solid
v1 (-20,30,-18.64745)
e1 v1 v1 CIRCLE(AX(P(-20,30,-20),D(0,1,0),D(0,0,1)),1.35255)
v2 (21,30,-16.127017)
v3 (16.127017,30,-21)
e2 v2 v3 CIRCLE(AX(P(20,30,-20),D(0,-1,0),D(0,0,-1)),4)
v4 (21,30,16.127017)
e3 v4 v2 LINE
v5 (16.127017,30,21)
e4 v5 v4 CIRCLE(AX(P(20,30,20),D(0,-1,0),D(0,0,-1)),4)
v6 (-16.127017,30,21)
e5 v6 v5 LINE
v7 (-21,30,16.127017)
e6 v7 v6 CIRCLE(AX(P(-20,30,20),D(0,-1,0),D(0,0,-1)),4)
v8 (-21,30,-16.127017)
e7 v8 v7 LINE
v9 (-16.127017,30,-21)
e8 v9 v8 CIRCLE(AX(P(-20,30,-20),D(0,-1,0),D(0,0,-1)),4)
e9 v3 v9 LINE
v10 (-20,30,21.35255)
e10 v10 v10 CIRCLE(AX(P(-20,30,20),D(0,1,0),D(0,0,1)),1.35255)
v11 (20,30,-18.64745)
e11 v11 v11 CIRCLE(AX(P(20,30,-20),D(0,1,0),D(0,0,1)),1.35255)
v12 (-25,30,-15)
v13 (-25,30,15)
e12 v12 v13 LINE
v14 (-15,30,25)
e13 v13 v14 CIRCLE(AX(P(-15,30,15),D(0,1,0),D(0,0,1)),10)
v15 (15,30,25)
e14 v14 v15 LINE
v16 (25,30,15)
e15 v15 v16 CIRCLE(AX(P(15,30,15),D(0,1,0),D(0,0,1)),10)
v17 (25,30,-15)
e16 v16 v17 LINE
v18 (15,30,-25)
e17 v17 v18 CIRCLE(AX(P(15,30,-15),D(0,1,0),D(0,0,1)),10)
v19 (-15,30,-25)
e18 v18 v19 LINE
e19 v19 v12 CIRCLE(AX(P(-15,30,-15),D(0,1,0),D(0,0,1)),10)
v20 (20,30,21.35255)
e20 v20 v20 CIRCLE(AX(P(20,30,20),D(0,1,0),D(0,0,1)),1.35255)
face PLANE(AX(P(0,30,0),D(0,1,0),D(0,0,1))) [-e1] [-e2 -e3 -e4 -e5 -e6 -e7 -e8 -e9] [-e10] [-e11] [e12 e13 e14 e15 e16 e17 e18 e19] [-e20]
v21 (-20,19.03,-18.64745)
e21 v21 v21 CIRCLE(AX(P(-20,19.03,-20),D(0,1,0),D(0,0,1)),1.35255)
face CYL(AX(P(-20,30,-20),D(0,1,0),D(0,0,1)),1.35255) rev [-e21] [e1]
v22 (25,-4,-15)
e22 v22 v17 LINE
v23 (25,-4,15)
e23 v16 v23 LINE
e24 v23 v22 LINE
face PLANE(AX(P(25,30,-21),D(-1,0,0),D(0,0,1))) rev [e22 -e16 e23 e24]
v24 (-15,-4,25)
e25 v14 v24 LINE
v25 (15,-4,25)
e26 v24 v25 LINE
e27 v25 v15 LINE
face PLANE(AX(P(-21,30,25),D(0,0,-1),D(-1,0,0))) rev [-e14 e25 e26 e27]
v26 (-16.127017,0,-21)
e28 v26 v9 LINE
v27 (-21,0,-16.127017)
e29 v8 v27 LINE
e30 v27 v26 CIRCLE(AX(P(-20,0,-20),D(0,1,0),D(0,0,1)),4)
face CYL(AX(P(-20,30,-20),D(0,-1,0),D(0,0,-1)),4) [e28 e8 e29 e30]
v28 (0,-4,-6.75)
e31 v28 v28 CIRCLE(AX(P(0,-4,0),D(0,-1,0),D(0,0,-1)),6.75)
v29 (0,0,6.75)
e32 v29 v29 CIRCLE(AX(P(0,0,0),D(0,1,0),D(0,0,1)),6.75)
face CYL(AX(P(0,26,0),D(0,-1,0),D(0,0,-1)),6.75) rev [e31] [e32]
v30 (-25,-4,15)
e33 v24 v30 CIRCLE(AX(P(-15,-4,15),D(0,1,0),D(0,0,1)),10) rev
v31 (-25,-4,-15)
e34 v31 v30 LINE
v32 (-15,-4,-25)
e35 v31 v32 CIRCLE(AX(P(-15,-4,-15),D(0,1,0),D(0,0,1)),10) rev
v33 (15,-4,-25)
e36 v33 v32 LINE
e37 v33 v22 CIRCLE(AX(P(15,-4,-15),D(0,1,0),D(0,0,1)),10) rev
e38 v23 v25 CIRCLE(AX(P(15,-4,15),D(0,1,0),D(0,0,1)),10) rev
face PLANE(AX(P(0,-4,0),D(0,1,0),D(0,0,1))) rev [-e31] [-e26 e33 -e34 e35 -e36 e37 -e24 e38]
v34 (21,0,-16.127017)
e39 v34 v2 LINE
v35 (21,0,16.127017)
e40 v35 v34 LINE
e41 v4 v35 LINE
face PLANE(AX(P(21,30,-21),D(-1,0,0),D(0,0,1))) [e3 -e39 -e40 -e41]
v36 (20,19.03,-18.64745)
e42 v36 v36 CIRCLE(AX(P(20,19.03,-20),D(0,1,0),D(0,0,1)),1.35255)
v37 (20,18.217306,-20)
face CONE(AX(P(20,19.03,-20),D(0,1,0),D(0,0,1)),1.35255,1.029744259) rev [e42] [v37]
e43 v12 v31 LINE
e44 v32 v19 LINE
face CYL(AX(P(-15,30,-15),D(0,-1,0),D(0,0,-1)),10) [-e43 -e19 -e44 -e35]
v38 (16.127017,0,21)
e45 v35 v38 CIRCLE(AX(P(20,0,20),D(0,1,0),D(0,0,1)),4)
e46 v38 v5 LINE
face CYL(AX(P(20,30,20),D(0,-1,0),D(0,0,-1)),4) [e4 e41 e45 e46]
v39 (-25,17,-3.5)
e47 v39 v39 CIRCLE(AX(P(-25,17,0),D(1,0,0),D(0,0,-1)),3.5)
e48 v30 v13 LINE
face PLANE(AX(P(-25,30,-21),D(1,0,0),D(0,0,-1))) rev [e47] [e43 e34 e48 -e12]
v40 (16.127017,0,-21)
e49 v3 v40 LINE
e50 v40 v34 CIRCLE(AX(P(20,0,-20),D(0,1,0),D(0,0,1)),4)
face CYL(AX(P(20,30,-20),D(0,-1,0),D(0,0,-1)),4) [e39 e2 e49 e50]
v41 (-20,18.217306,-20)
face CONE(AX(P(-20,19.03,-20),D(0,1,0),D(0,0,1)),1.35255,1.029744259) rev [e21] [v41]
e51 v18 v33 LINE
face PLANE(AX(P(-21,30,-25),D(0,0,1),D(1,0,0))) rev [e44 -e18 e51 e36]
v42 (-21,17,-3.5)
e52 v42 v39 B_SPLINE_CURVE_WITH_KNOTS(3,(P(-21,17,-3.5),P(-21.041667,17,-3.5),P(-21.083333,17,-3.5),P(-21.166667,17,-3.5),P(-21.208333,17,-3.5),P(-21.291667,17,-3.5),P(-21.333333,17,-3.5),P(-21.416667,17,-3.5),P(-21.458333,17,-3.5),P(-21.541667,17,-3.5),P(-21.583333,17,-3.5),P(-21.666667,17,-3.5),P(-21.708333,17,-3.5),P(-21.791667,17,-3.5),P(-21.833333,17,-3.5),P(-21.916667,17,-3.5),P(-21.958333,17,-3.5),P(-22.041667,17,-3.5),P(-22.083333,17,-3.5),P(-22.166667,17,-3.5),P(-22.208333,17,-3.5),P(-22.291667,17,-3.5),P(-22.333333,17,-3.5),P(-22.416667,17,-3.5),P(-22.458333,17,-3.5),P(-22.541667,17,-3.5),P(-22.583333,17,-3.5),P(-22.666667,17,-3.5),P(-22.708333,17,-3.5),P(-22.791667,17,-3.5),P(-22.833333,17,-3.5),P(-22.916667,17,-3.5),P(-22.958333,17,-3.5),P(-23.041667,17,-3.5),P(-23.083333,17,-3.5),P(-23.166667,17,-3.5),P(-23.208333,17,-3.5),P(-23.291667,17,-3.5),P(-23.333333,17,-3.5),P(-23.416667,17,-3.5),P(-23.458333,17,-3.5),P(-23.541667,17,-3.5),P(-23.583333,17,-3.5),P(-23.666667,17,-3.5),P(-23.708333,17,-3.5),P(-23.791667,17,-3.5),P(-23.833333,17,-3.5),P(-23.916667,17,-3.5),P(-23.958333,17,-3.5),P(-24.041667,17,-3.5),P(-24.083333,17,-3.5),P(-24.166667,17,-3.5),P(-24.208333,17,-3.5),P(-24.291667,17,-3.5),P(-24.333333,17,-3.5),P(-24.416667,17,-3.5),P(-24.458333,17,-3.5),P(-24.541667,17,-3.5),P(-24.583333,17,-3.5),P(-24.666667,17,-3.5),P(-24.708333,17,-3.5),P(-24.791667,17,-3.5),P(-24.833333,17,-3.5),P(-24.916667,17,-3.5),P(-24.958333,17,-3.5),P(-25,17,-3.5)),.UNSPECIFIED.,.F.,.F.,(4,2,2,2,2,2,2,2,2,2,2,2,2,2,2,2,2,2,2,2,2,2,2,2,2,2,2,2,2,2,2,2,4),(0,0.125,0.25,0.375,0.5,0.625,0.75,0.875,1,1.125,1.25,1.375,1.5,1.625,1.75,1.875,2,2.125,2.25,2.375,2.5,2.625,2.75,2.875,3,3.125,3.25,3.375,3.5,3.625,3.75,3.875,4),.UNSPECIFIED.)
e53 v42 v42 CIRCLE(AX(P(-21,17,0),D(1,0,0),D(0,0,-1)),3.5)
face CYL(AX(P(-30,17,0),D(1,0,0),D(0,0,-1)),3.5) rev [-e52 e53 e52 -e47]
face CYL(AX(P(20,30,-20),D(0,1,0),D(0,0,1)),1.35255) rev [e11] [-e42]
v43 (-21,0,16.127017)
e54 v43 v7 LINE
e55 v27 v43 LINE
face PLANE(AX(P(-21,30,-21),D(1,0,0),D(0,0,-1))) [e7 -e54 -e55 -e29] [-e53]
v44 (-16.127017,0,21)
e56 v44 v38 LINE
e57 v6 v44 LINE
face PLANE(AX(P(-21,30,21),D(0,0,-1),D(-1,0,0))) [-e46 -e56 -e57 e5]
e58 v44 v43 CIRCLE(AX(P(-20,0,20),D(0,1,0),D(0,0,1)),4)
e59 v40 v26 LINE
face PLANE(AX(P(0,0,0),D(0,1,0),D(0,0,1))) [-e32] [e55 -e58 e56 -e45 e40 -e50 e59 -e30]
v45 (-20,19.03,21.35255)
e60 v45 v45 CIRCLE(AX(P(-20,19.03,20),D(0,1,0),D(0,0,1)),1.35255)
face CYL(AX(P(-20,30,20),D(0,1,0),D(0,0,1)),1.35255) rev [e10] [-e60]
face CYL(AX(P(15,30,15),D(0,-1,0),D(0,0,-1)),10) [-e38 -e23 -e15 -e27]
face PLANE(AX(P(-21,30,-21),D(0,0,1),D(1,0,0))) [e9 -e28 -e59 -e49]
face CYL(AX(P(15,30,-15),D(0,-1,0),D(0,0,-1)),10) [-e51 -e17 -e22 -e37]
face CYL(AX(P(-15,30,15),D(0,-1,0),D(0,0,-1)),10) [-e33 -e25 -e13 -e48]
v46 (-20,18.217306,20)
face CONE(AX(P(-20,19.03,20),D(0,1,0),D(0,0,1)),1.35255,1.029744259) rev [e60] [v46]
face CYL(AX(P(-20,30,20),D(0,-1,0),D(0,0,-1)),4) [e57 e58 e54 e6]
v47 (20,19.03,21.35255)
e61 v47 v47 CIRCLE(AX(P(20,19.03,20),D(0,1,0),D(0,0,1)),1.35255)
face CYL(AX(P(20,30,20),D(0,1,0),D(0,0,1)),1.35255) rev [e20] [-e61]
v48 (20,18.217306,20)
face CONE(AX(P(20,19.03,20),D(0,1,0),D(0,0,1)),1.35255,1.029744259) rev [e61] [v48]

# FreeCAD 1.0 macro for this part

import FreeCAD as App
import Part
import Sketcher
from FreeCAD import Vector
Q = App.Units.Quantity


def edges_at(feature, points):
    """Names of the edges that pass closest to the given points."""
    edges = feature.Shape.Edges
    near = lambda p: min(range(len(edges)), key=lambda i: edges[i].distToShape(Part.Vertex(*p))[0])
    return sorted({f"Edge{near(p) + 1}" for p in points})


def faces_at(feature, points):
    """Names of the faces that lie closest to the given points."""
    faces = feature.Shape.Faces
    near = lambda p: min(range(len(faces)), key=lambda i: faces[i].distToShape(Part.Vertex(*p))[0])
    return sorted({f"Face{near(p) + 1}" for p in points})


def add_polygon(sketch, points):
    """Adds a closed chain of lines whose ends are joined by coincident constraints."""
    first, n = sketch.GeometryCount, len(points)
    for a, b in zip(points, points[1:] + points[:1]):
        sketch.addGeometry(Part.LineSegment(App.Vector(*a, 0), App.Vector(*b, 0)), False)
    for i in range(n):
        sketch.addConstraint(Sketcher.Constraint("Coincident", first + i, 2, first + (i + 1) % n, 1))

doc = App.newDocument("Part")
body = doc.addObject("PartDesign::Body", "Body")

sketch1 = body.newObject("Sketcher::SketchObject", "Sketch")
sketch1.AttachmentSupport = (doc.getObject("XZ_Plane"), [""])
sketch1.MapMode = "FlatFace"
add_polygon(sketch1, [(-21, -21), (-21, 21), (21, 21), (21, -21)])
sketch1.addConstraint(Sketcher.Constraint("Vertical", 0))
sketch1.addConstraint(Sketcher.Constraint("Horizontal", 1))
sketch1.addConstraint(Sketcher.Constraint("Vertical", 2))
sketch1.addConstraint(Sketcher.Constraint("Horizontal", 3))
sketch1.addConstraint(Sketcher.Constraint("Symmetric", 0, 2, 2, 2, -1, 1))
sketch1.addConstraint(Sketcher.Constraint("Equal", 3, 0))
sketch1.addConstraint(Sketcher.Constraint("DistanceX", 1, 1, 1, 2, Q("42 mm")))
pad1 = body.newObject("PartDesign::Pad", "Pad")
pad1.Profile = sketch1
pad1.Length = 30
pad1.Reversed = True
doc.recompute()

thickness = body.newObject("PartDesign::Thickness", "Thickness")
thickness.Base = (pad1, faces_at(pad1, [(0, 30, 0)]))
thickness.Value = 4
thickness.Reversed = False
thickness.Join = "Intersection"

sketch2 = body.newObject("Sketcher::SketchObject", "Sketch001")
sketch2.AttachmentSupport = (doc.getObject("YZ_Plane"), [""])
sketch2.MapMode = "FlatFace"
sketch2.addGeometry(Part.Circle(Vector(17, 0, 0), Vector(0, 0, 1), 3.5), False)
sketch2.addConstraint(Sketcher.Constraint("PointOnObject", 0, 3, -1))
sketch2.addConstraint(Sketcher.Constraint("Diameter", 0, Q("7 mm")))
sketch2.addConstraint(Sketcher.Constraint("DistanceX", -1, 1, 0, 3, Q("17 mm")))
pocket1 = body.newObject("PartDesign::Pocket", "Pocket")
pocket1.Profile = sketch2
pocket1.Length = 30

sketch3 = body.newObject("Sketcher::SketchObject", "Sketch002")
sketch3.AttachmentSupport = (doc.getObject("XZ_Plane"), [""])
sketch3.MapMode = "FlatFace"
sketch3.AttachmentOffset = App.Placement(Vector(0, 0, 4), App.Rotation())
sketch3.addGeometry(Part.Circle(Vector(0, 0, 0), Vector(0, 0, 1), 7), False)
sketch3.addConstraint(Sketcher.Constraint("Coincident", 0, 3, -1, 1))
sketch3.addConstraint(Sketcher.Constraint("Diameter", 0, Q("13.5 mm")))
pocket2 = body.newObject("PartDesign::Pocket", "Pocket001")
pocket2.Profile = sketch3
pocket2.Length = 30

sketch4 = body.newObject("Sketcher::SketchObject", "Sketch003")
sketch4.AttachmentSupport = (doc.getObject("XZ_Plane"), [""])
sketch4.MapMode = "FlatFace"
sketch4.AttachmentOffset = App.Placement(Vector(0, 0, 4), App.Rotation())
sketch4.addGeometry(Part.Circle(Vector(-20, 20, 0), Vector(0, 0, 1), 4), False)
sketch4.addGeometry(Part.Circle(Vector(20, 20, 0), Vector(0, 0, 1), 4), False)
sketch4.addGeometry(Part.Circle(Vector(20, -20, 0), Vector(0, 0, 1), 4), False)
sketch4.addGeometry(Part.Circle(Vector(-20, -20, 0), Vector(0, 0, 1), 4), False)
sketch4.addConstraint(Sketcher.Constraint("Equal", 0, 1))
sketch4.addConstraint(Sketcher.Constraint("Equal", 1, 2))
sketch4.addConstraint(Sketcher.Constraint("Equal", 2, 3))
sketch4.addConstraint(Sketcher.Constraint("Symmetric", 0, 3, 2, 3, -1, 1))
sketch4.addConstraint(Sketcher.Constraint("Symmetric", 1, 3, 3, 3, -1, 1))
sketch4.addConstraint(Sketcher.Constraint("Symmetric", 0, 3, 1, 3, -2))
sketch4.addConstraint(Sketcher.Constraint("Diameter", 0, Q("8 mm")))
sketch4.addConstraint(Sketcher.Constraint("DistanceX", 0, 3, -1, 1, Q("20 mm")))
sketch4.addConstraint(Sketcher.Constraint("DistanceY", -1, 1, 0, 3, Q("20 mm")))
pad2 = body.newObject("PartDesign::Pad", "Pad001")
pad2.Profile = sketch4
pad2.Length = 34
pad2.Reversed = True

sketch5 = body.newObject("Sketcher::SketchObject", "Sketch004")
sketch5.AttachmentSupport = (doc.getObject("XZ_Plane"), [""])
sketch5.MapMode = "FlatFace"
sketch5.AttachmentOffset = App.Placement(Vector(0, 0, -30), App.Rotation())
sketch5.addGeometry(Part.Circle(Vector(-20, -20, 0), Vector(0, 0, 1), 1.4), False)
sketch5.addGeometry(Part.Circle(Vector(20, -20, 0), Vector(0, 0, 1), 1.4), False)
sketch5.addGeometry(Part.Circle(Vector(20, 20, 0), Vector(0, 0, 1), 1.4), False)
sketch5.addGeometry(Part.Circle(Vector(-20, 20, 0), Vector(0, 0, 1), 1.4), False)
sketch5.addConstraint(Sketcher.Constraint("Equal", 0, 1))
sketch5.addConstraint(Sketcher.Constraint("Equal", 1, 2))
sketch5.addConstraint(Sketcher.Constraint("Equal", 2, 3))
sketch5.addConstraint(Sketcher.Constraint("Symmetric", 0, 3, 2, 3, -1, 1))
sketch5.addConstraint(Sketcher.Constraint("Symmetric", 1, 3, 3, 3, -1, 1))
sketch5.addConstraint(Sketcher.Constraint("Symmetric", 0, 3, 1, 3, -2))
sketch5.addConstraint(Sketcher.Constraint("DistanceX", 0, 3, -1, 1, Q("20 mm")))
sketch5.addConstraint(Sketcher.Constraint("DistanceY", 0, 3, -1, 1, Q("20 mm")))
sketch5.addConstraint(Sketcher.Constraint("Diameter", 0, Q("2.7051 mm")))
doc.recompute()
hole = body.newObject("PartDesign::Hole", "Hole")
hole.Profile = sketch5
hole.ThreadType = "None"
hole.Diameter = 2.7051
hole.DepthType = "Dimension"
hole.Depth = 10.97
hole.DrillPoint = "Angled"
hole.DrillPointAngle = 118
hole.Reversed = True
doc.recompute()

fillet = body.newObject("PartDesign::Fillet", "Fillet")
fillet.Base = (hole, edges_at(hole, [
    (25, 13, 25),
    (-25, 13, 25),
    (-25, 13, -25),
    (25, 13, -25),
]))
fillet.Radius = 10

doc.recompute()
